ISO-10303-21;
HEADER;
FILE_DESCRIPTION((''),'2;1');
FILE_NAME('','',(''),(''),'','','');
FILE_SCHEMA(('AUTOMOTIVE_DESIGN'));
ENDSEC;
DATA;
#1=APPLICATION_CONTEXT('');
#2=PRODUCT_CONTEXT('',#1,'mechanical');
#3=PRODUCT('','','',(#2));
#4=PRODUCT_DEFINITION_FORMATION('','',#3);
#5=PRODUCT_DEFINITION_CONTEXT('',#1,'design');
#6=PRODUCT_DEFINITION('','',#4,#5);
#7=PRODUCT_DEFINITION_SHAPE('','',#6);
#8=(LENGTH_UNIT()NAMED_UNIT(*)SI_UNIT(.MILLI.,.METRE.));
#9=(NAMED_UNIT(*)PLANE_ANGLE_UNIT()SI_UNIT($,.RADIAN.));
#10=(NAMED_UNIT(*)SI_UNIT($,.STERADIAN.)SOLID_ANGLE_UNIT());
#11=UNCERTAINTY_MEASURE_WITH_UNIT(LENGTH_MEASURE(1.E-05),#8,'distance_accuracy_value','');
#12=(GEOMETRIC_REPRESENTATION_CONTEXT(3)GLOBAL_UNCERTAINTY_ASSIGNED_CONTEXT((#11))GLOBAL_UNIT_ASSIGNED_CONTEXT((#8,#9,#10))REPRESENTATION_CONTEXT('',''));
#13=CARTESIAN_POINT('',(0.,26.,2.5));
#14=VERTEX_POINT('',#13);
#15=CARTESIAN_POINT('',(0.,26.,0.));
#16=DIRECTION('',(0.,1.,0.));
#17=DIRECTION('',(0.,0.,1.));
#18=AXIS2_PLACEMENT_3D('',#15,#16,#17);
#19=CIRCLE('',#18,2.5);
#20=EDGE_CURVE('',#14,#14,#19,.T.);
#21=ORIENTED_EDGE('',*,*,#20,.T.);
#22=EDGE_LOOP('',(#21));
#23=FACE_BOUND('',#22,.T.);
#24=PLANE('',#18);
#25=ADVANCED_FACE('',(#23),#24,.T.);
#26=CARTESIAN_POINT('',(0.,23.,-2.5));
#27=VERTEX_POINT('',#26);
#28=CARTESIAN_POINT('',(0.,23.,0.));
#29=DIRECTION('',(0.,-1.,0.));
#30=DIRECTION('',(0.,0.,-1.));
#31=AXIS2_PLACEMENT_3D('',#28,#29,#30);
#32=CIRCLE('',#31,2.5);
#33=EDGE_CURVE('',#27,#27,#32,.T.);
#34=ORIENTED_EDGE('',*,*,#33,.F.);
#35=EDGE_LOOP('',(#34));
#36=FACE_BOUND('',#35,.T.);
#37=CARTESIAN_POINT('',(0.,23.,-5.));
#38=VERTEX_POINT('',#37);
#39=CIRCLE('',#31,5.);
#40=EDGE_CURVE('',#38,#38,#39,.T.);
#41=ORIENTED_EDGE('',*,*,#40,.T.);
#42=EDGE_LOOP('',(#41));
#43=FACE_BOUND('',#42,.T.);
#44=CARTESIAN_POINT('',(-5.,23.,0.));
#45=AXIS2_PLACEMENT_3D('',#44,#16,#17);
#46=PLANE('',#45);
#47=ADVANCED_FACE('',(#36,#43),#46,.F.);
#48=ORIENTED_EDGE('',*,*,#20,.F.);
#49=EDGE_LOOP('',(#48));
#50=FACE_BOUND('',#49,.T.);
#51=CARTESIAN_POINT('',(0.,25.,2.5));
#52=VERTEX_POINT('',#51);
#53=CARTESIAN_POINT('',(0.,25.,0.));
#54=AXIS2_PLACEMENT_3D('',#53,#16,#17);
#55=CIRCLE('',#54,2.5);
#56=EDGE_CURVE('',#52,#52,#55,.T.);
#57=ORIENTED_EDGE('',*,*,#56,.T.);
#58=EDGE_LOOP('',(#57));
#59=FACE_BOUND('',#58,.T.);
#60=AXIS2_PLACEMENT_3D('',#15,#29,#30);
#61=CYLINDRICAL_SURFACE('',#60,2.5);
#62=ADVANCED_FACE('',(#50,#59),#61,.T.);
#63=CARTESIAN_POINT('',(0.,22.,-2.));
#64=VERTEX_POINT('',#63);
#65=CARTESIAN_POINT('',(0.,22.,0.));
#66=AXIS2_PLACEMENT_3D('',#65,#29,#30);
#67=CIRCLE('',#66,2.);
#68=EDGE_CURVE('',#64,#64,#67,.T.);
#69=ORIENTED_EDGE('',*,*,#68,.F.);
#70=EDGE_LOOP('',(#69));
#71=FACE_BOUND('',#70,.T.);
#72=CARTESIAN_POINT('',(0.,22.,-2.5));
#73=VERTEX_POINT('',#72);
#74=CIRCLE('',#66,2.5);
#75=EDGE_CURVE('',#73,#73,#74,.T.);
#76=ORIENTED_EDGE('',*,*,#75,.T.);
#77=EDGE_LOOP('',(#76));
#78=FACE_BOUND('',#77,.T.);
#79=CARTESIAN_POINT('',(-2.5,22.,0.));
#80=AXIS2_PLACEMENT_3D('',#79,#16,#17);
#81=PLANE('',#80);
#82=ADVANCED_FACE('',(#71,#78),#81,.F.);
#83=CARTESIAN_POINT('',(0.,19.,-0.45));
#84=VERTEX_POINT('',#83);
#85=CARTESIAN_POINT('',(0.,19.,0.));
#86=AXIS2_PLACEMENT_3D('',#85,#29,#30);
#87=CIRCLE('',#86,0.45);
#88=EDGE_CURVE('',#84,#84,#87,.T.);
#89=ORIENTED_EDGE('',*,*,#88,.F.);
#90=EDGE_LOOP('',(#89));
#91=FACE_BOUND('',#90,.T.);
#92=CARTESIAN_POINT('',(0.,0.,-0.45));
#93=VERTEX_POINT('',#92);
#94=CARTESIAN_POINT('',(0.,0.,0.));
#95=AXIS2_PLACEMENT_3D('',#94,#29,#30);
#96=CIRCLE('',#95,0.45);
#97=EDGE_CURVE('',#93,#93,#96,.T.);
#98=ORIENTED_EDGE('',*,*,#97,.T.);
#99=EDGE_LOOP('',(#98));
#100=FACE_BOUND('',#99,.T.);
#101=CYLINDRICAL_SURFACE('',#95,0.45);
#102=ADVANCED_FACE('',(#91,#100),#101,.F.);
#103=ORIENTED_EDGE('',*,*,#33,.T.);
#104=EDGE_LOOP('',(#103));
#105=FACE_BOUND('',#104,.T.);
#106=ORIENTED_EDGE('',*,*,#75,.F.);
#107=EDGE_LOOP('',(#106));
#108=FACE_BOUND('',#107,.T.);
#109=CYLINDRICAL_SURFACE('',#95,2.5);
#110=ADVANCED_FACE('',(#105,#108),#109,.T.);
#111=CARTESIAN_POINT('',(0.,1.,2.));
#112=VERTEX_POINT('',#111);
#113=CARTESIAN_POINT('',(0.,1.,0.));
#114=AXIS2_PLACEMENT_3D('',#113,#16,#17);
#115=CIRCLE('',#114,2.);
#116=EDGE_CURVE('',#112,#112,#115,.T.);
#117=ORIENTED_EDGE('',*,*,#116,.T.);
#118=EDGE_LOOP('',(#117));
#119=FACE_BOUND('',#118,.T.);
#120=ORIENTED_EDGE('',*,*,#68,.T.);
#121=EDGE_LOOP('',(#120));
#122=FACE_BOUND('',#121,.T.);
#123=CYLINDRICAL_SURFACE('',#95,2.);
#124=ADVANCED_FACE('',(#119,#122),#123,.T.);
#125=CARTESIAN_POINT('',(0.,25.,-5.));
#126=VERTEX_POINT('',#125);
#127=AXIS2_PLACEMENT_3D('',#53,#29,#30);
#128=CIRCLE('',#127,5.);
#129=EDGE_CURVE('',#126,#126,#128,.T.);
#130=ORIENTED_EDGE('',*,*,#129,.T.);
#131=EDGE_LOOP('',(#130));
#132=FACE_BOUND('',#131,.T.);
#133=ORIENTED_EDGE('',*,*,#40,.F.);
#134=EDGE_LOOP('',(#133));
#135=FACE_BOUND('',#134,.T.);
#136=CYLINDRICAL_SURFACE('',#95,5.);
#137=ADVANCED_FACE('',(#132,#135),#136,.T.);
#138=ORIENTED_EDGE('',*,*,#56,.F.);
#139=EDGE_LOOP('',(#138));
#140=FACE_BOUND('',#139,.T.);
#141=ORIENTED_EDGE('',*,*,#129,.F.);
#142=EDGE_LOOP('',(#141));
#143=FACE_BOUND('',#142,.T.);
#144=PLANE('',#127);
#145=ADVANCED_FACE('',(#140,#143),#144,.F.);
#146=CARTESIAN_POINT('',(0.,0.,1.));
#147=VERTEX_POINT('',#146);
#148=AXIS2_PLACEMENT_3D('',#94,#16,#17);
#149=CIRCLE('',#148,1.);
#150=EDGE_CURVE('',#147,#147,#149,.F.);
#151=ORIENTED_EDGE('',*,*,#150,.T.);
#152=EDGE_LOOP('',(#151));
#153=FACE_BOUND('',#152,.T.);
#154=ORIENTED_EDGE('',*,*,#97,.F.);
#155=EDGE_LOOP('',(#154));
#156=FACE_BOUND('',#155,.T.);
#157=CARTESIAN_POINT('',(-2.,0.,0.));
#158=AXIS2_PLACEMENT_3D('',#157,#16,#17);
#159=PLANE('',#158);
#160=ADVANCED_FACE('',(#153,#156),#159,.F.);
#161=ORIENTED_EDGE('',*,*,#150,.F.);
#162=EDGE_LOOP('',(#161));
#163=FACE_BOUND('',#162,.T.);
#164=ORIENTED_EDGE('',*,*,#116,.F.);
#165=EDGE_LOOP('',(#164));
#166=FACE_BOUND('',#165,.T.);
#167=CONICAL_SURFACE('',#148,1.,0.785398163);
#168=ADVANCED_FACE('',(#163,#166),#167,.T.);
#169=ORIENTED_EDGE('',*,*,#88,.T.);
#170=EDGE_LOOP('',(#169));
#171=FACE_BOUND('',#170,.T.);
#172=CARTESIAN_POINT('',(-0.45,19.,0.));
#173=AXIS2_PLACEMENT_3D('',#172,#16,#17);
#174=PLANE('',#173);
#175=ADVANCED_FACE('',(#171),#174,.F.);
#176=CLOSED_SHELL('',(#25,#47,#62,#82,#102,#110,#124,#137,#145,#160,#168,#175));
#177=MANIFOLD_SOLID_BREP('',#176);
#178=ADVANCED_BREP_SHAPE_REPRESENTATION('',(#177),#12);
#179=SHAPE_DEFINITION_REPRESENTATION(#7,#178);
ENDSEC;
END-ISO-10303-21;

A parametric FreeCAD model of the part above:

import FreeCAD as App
import Part
import Sketcher


def edges_at(feature, points):
    """Names of the edges that pass closest to the given points."""
    edges = feature.Shape.Edges
    near = lambda p: min(range(len(edges)), key=lambda i: edges[i].distToShape(Part.Vertex(*p))[0])
    return sorted({f"Edge{near(p) + 1}" for p in points})

doc = App.newDocument("Part")
params = doc.addObject("Spreadsheet::Sheet", "Params")
for row, (alias, value) in enumerate([
    ("sketch1_width", "5 mm"),
    ("sketch1_height", "2 mm"),
    ("sketch1_height2", "1 mm"),
    ("sketch1_height3", "22 mm"),
    ("sketch1_height4", "19 mm"),
    ("revolution_angle", "360 deg"),
    ("chamfer_size", "1 mm"),
    ("sketch2_diameter", "5 mm"),
    ("pad1_length", "1 mm"),
], start=1):
    params.set(f"A{row}", alias)
    params.set(f"B{row}", "=" + value)
    params.setAlias(f"B{row}", alias)

body = doc.addObject("PartDesign::Body", "Body")

# Sketch on XY plane
sketch1 = doc.addObject("Sketcher::SketchObject", "Sketch")
body.addObject(sketch1)
sketch1.AttachmentSupport = (doc.XY_Plane, [""])
sketch1.MapMode = "FlatFace"
sketch1.addGeometry([
    Part.LineSegment(App.Vector(0, 25, 0), App.Vector(-5, 25, 0)),  # 0
    Part.LineSegment(App.Vector(-5, 25, 0), App.Vector(-5, 23, 0)),  # 1
    Part.LineSegment(App.Vector(-5, 23, 0), App.Vector(-2.5, 23, 0)),  # 2
    Part.LineSegment(App.Vector(-2.5, 23, 0), App.Vector(-2.5, 22, 0)),  # 3
    Part.LineSegment(App.Vector(-2.5, 22, 0), App.Vector(-2, 22, 0)),  # 4
    Part.LineSegment(App.Vector(-2, 22, 0), App.Vector(-2, 0, 0)),  # 5
    Part.LineSegment(App.Vector(-2, 0, 0), App.Vector(-0.45, 0, 0)),  # 6
    Part.LineSegment(App.Vector(-0.45, 0, 0), App.Vector(-0.45, 19, 0)),  # 7
    Part.LineSegment(App.Vector(-0.45, 19, 0), App.Vector(0, 19, 0)),  # 8
    Part.LineSegment(App.Vector(0, 19, 0), App.Vector(0, 25, 0)),  # 9
], False)
sketch1.addConstraint([
    Sketcher.Constraint("Coincident", 0, 2, 1, 1),
    Sketcher.Constraint("Coincident", 1, 2, 2, 1),
    Sketcher.Constraint("Coincident", 2, 2, 3, 1),
    Sketcher.Constraint("Coincident", 3, 2, 4, 1),
    Sketcher.Constraint("Coincident", 4, 2, 5, 1),
    Sketcher.Constraint("Coincident", 5, 2, 6, 1),
    Sketcher.Constraint("Coincident", 6, 2, 7, 1),
    Sketcher.Constraint("Coincident", 7, 2, 8, 1),
    Sketcher.Constraint("Coincident", 8, 2, 9, 1),
    Sketcher.Constraint("Coincident", 9, 2, 0, 1),
    Sketcher.Constraint("Horizontal", 0),
    Sketcher.Constraint("Vertical", 1),
    Sketcher.Constraint("Horizontal", 2),
    Sketcher.Constraint("Vertical", 3),
    Sketcher.Constraint("Horizontal", 4),
    Sketcher.Constraint("Vertical", 5),
    Sketcher.Constraint("Horizontal", 6),
    Sketcher.Constraint("Vertical", 7),
    Sketcher.Constraint("Horizontal", 8),
    Sketcher.Constraint("Vertical", 9),
    Sketcher.Constraint("PointOnObject", 5, 2, -1),
    Sketcher.Constraint("PointOnObject", 8, 2, -2),
    Sketcher.Constraint("DistanceX", 0, 2, 0, 1, 5.0),
    Sketcher.Constraint("DistanceY", 1, 2, 1, 1, 2.0),
    Sketcher.Constraint("DistanceY", 3, 2, 3, 1, 1.0),
    Sketcher.Constraint("DistanceY", 5, 2, 5, 1, 22.0),
    Sketcher.Constraint("DistanceY", 7, 1, 7, 2, 19.0),
    Sketcher.Constraint("DistanceX", 2, 1, 2, 2, 2.5),
    Sketcher.Constraint("DistanceX", 4, 1, 4, 2, 0.5),
    Sketcher.Constraint("DistanceX", 6, 1, 6, 2, 1.55),
])
sketch1.setExpression("Constraints[22]", "Params.sketch1_width")
sketch1.setExpression("Constraints[23]", "Params.sketch1_height")
sketch1.setExpression("Constraints[24]", "Params.sketch1_height2")
sketch1.setExpression("Constraints[25]", "Params.sketch1_height3")
sketch1.setExpression("Constraints[26]", "Params.sketch1_height4")
revolution = doc.addObject("PartDesign::Revolution", "Revolution")
body.addObject(revolution)
revolution.Profile = sketch1
revolution.ReferenceAxis = (sketch1, ["V_Axis"])
revolution.setExpression("Angle", "Params.revolution_angle")
doc.recompute()

chamfer = doc.addObject("PartDesign::Chamfer", "Chamfer")
body.addObject(chamfer)
chamfer.Base = (revolution, edges_at(revolution, [(0, 0, 2)]))
chamfer.setExpression("Size", "Params.chamfer_size")

# Sketch on XZ plane
sketch2 = doc.addObject("Sketcher::SketchObject", "Sketch001")
body.addObject(sketch2)
sketch2.AttachmentSupport = (doc.XZ_Plane, [""])
sketch2.MapMode = "FlatFace"
sketch2.AttachmentOffset = App.Placement(App.Vector(0, 0, -25), App.Rotation())
sketch2.addGeometry(Part.Circle(App.Vector(0, 0, 0), App.Vector(0, 0, 1), 2.5), False)
sketch2.addConstraint([
    Sketcher.Constraint("Coincident", 0, 3, -1, 1),
    Sketcher.Constraint("Diameter", 0, 5.0),
])
sketch2.setExpression("Constraints[1]", "Params.sketch2_diameter")
pad1 = doc.addObject("PartDesign::Pad", "Pad")
body.addObject(pad1)
pad1.Profile = sketch2
pad1.setExpression("Length", "Params.pad1_length")
pad1.Reversed = True

doc.recompute()
